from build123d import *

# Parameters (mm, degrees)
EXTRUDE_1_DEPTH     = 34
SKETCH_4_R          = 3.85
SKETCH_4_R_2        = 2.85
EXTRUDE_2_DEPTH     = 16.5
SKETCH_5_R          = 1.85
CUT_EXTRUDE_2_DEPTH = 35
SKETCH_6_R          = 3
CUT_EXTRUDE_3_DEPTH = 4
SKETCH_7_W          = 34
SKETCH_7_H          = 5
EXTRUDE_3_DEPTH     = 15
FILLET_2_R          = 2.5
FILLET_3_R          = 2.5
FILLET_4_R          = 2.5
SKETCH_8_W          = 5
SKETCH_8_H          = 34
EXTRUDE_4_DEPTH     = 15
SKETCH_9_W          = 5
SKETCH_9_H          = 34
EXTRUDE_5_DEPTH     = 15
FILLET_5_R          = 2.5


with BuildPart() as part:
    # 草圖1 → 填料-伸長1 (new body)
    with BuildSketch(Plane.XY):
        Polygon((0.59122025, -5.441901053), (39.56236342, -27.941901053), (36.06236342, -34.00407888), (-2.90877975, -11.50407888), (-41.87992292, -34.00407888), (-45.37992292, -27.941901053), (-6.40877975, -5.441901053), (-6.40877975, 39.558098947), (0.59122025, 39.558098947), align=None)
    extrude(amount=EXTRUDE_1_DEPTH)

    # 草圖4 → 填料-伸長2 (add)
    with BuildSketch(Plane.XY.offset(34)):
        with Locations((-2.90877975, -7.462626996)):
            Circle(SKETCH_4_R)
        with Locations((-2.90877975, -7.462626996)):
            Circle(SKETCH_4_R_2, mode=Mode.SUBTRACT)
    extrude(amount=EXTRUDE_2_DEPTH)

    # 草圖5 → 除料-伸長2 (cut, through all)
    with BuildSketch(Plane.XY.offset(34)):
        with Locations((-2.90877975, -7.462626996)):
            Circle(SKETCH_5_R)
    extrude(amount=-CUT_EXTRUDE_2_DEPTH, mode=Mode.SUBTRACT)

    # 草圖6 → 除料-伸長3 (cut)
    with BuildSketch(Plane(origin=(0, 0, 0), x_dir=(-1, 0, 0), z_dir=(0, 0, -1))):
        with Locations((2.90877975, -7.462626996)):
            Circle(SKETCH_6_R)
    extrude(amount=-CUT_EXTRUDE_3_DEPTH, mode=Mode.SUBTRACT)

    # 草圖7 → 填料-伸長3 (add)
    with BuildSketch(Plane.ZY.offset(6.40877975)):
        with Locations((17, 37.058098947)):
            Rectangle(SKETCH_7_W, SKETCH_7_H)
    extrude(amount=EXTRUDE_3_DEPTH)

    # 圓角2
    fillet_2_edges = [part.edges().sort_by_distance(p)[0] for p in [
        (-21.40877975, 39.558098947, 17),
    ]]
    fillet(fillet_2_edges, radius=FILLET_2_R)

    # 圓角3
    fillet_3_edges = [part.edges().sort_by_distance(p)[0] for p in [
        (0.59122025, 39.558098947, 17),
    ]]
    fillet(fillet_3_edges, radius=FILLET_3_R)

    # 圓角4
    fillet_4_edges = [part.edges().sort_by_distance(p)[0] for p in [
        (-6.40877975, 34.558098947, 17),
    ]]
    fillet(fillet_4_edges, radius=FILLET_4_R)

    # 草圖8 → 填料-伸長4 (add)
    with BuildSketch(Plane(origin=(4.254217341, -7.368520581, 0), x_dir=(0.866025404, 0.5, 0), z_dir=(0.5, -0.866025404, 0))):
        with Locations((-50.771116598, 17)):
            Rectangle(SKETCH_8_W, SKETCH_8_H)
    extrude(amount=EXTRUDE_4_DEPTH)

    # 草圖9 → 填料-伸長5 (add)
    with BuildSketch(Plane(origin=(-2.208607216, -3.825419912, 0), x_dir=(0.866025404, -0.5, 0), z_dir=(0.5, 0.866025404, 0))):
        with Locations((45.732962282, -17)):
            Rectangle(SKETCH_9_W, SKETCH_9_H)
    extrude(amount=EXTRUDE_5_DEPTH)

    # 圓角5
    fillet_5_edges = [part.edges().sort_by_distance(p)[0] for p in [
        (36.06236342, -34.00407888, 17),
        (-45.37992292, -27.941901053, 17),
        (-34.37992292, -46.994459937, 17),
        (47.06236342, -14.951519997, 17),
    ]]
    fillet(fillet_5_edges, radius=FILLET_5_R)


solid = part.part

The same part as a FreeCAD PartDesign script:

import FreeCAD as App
import Part
import Sketcher
from FreeCAD import Vector
Q = App.Units.Quantity


def edges_at(feature, points):
    """Names of the edges that pass closest to the given points."""
    edges = feature.Shape.Edges
    near = lambda p: min(range(len(edges)), key=lambda i: edges[i].distToShape(Part.Vertex(*p))[0])
    return sorted({f"Edge{near(p) + 1}" for p in points})

doc = App.newDocument("Part")
body = doc.addObject("PartDesign::Body", "Body")

# Sketch on XY plane
sketch1 = body.newObject("Sketcher::SketchObject", "Sketch")
sketch1.AttachmentSupport = (doc.getObject("XY_Plane"), [""])
sketch1.MapMode = "FlatFace"
sketch1.addGeometry([
    Part.LineSegment(Vector(39.562363, -27.941901, 0), Vector(0.59122, -5.441901, 0)),  # 0
    Part.LineSegment(Vector(0.59122, -5.441901, 0), Vector(0.59122, 39.558099, 0)),  # 1
    Part.LineSegment(Vector(0.59122, 39.558099, 0), Vector(-6.40878, 39.558099, 0)),  # 2
    Part.LineSegment(Vector(-6.40878, 39.558099, 0), Vector(-6.40878, -5.441901, 0)),  # 3
    Part.LineSegment(Vector(-6.40878, -5.441901, 0), Vector(-45.379923, -27.941901, 0)),  # 4
    Part.LineSegment(Vector(-45.379923, -27.941901, 0), Vector(-41.879923, -34.004079, 0)),  # 5
    Part.LineSegment(Vector(-41.879923, -34.004079, 0), Vector(-2.90878, -11.504079, 0)),  # 6
    Part.LineSegment(Vector(-2.90878, -11.504079, 0), Vector(36.062363, -34.004079, 0)),  # 7
    Part.LineSegment(Vector(36.062363, -34.004079, 0), Vector(39.562363, -27.941901, 0)),  # 8
], False)
sketch1.addConstraint([
    Sketcher.Constraint("Coincident", 0, 2, 1, 1),
    Sketcher.Constraint("Coincident", 1, 2, 2, 1),
    Sketcher.Constraint("Coincident", 2, 2, 3, 1),
    Sketcher.Constraint("Coincident", 3, 2, 4, 1),
    Sketcher.Constraint("Coincident", 4, 2, 5, 1),
    Sketcher.Constraint("Coincident", 5, 2, 6, 1),
    Sketcher.Constraint("Coincident", 6, 2, 7, 1),
    Sketcher.Constraint("Coincident", 7, 2, 8, 1),
    Sketcher.Constraint("Coincident", 8, 2, 0, 1),
    Sketcher.Constraint("Vertical", 1),
    Sketcher.Constraint("Horizontal", 2),
    Sketcher.Constraint("Vertical", 3),
    Sketcher.Constraint("Perpendicular", 4, 5),
    Sketcher.Constraint("Perpendicular", 5, 6),
    Sketcher.Constraint("Parallel", 0, 7),
    Sketcher.Constraint("Perpendicular", 7, 8),
    Sketcher.Constraint("Horizontal", 0, 2, 3, 2),
    Sketcher.Constraint("Horizontal", 5, 2, 7, 2),
    Sketcher.Constraint("Horizontal", 4, 2, 8, 2),
    Sketcher.Constraint("Equal", 0, 4),
    Sketcher.Constraint("Equal", 4, 6),
    Sketcher.Constraint("DistanceX", 2, 2, 2, 1, Q("7 mm")),
    Sketcher.Constraint("DistanceY", 1, 1, 1, 2, Q("45 mm")),
    Sketcher.Constraint("Angle", 0, Q("150 deg")),
    Sketcher.Constraint("Distance", 0, Q("45 mm")),
    Sketcher.Constraint("DistanceY", 0, 2, -1, 1, Q("5.441901 mm")),
    Sketcher.Constraint("DistanceX", -1, 1, 0, 2, Q("0.59122 mm")),
])
pad1 = body.newObject("PartDesign::Pad", "Pad")
pad1.Profile = sketch1
pad1.Length = 34

# Sketch on XY plane
sketch2 = body.newObject("Sketcher::SketchObject", "Sketch001")
sketch2.AttachmentSupport = (doc.getObject("XY_Plane"), [""])
sketch2.MapMode = "FlatFace"
sketch2.AttachmentOffset = App.Placement(Vector(0, 0, 34), App.Rotation())
sketch2.addGeometry([
    Part.Circle(Vector(-2.90878, -7.462627, 0), Vector(0, 0, 1), 3.85),
    Part.Circle(Vector(-2.90878, -7.462627, 0), Vector(0, 0, 1), 2.85),
], False)
sketch2.addConstraint([
    Sketcher.Constraint("Coincident", 1, 3, 0, 3),
    Sketcher.Constraint("Diameter", 0, Q("7.7 mm")),
    Sketcher.Constraint("Diameter", 1, Q("5.7 mm")),
    Sketcher.Constraint("DistanceX", 0, 3, -1, 1, Q("2.90878 mm")),
    Sketcher.Constraint("DistanceY", 0, 3, -1, 1, Q("7.462627 mm")),
])
pad2 = body.newObject("PartDesign::Pad", "Pad001")
pad2.Profile = sketch2
pad2.Length = 16.5

# Sketch on XY plane
sketch3 = body.newObject("Sketcher::SketchObject", "Sketch002")
sketch3.AttachmentSupport = (doc.getObject("XY_Plane"), [""])
sketch3.MapMode = "FlatFace"
sketch3.AttachmentOffset = App.Placement(Vector(0, 0, 34), App.Rotation())
sketch3.addGeometry(Part.Circle(Vector(-2.90878, -7.462627, 0), Vector(0, 0, 1), 1.85), False)
sketch3.addConstraint([
    Sketcher.Constraint("Diameter", 0, Q("3.7 mm")),
    Sketcher.Constraint("DistanceX", 0, 3, -1, 1, Q("2.90878 mm")),
    Sketcher.Constraint("DistanceY", 0, 3, -1, 1, Q("7.462627 mm")),
])
pocket1 = body.newObject("PartDesign::Pocket", "Pocket")
pocket1.Profile = sketch3
pocket1.Type = "ThroughAll"

# Sketch on XY plane
sketch4 = body.newObject("Sketcher::SketchObject", "Sketch003")
sketch4.AttachmentSupport = (doc.getObject("XY_Plane"), [""])
sketch4.MapMode = "FlatFace"
sketch4.addGeometry(Part.Circle(Vector(-2.90878, -7.462627, 0), Vector(0, 0, 1), 3), False)
sketch4.addConstraint([
    Sketcher.Constraint("Diameter", 0, Q("6 mm")),
    Sketcher.Constraint("DistanceX", 0, 3, -1, 1, Q("2.90878 mm")),
    Sketcher.Constraint("DistanceY", 0, 3, -1, 1, Q("7.462627 mm")),
])
pocket2 = body.newObject("PartDesign::Pocket", "Pocket001")
pocket2.Profile = sketch4
pocket2.Length = 4
pocket2.Reversed = True

# Sketch on YZ plane
sketch5 = body.newObject("Sketcher::SketchObject", "Sketch004")
sketch5.AttachmentSupport = (doc.getObject("YZ_Plane"), [""])
sketch5.MapMode = "FlatFace"
sketch5.AttachmentOffset = App.Placement(Vector(0, 0, -6.40878), App.Rotation())
sketch5.addGeometry([
    Part.LineSegment(Vector(39.558099, 0, 0), Vector(34.558099, 0, 0)),
    Part.LineSegment(Vector(34.558099, 0, 0), Vector(34.558099, 34, 0)),
    Part.LineSegment(Vector(34.558099, 34, 0), Vector(39.558099, 34, 0)),
    Part.LineSegment(Vector(39.558099, 34, 0), Vector(39.558099, 0, 0)),
], False)
sketch5.addConstraint([
    Sketcher.Constraint("Coincident", 0, 2, 1, 1),
    Sketcher.Constraint("Coincident", 1, 2, 2, 1),
    Sketcher.Constraint("Coincident", 2, 2, 3, 1),
    Sketcher.Constraint("Coincident", 3, 2, 0, 1),
    Sketcher.Constraint("Horizontal", 0),
    Sketcher.Constraint("Vertical", 1),
    Sketcher.Constraint("Horizontal", 2),
    Sketcher.Constraint("Vertical", 3),
    Sketcher.Constraint("PointOnObject", 0, 2, -1),
    Sketcher.Constraint("DistanceX", 0, 2, 0, 1, Q("5 mm")),
    Sketcher.Constraint("DistanceY", 1, 1, 1, 2, Q("34 mm")),
    Sketcher.Constraint("DistanceX", -1, 1, 0, 2, Q("34.558099 mm")),
])
pad3 = body.newObject("PartDesign::Pad", "Pad002")
pad3.Profile = sketch5
pad3.Length = 15
pad3.Reversed = True
doc.recompute()

fillet = body.newObject("PartDesign::Fillet", "Fillet")
fillet.Base = (pad3, edges_at(pad3, [(-21.409, 39.558, 17)]))
fillet.Radius = 2.5
doc.recompute()

fillet2 = body.newObject("PartDesign::Fillet", "Fillet001")
fillet2.Base = (fillet, edges_at(fillet, [(0.591, 39.558, 17)]))
fillet2.Radius = 2.5
doc.recompute()

fillet3 = body.newObject("PartDesign::Fillet", "Fillet002")
fillet3.Base = (fillet2, edges_at(fillet2, [(-6.409, 34.558, 17)]))
fillet3.Radius = 2.5

# Sketch on an angled plane
sketch6 = body.newObject("Sketcher::SketchObject", "Sketch005")
sketch6.Placement = App.Placement(Vector(4.254217, -7.368521, 0), App.Rotation(Vector(0.866025404, 0.5, 0), Vector(0, 0, 1), Vector(0.5, -0.866025404, 0), "ZXY"))
sketch6.addGeometry([
    Part.LineSegment(Vector(-53.271117, 34, 0), Vector(-53.271117, 0, 0)),
    Part.LineSegment(Vector(-53.271117, 0, 0), Vector(-48.271117, 0, 0)),
    Part.LineSegment(Vector(-48.271117, 0, 0), Vector(-48.271117, 34, 0)),
    Part.LineSegment(Vector(-48.271117, 34, 0), Vector(-53.271117, 34, 0)),
], False)
sketch6.addConstraint([
    Sketcher.Constraint("Coincident", 0, 2, 1, 1),
    Sketcher.Constraint("Coincident", 1, 2, 2, 1),
    Sketcher.Constraint("Coincident", 2, 2, 3, 1),
    Sketcher.Constraint("Coincident", 3, 2, 0, 1),
    Sketcher.Constraint("Vertical", 0),
    Sketcher.Constraint("Horizontal", 1),
    Sketcher.Constraint("Vertical", 2),
    Sketcher.Constraint("Horizontal", 3),
    Sketcher.Constraint("PointOnObject", 0, 2, -1),
    Sketcher.Constraint("DistanceX", 1, 1, 1, 2, Q("5 mm")),
    Sketcher.Constraint("DistanceY", 0, 2, 0, 1, Q("34 mm")),
    Sketcher.Constraint("DistanceX", 0, 2, -1, 1, Q("53.271117 mm")),
])
pad4 = body.newObject("PartDesign::Pad", "Pad003")
pad4.Profile = sketch6
pad4.Length = 15

# Sketch on an angled plane
sketch7 = body.newObject("Sketcher::SketchObject", "Sketch006")
sketch7.Placement = App.Placement(Vector(-2.208607, -3.82542, 0), App.Rotation(Vector(0.866025404, -0.5, 0), Vector(0, 0, -1), Vector(0.5, 0.866025404, 0), "ZXY"))
sketch7.addGeometry([
    Part.LineSegment(Vector(43.232962, 0, 0), Vector(43.232962, -34, 0)),
    Part.LineSegment(Vector(43.232962, -34, 0), Vector(48.232962, -34, 0)),
    Part.LineSegment(Vector(48.232962, -34, 0), Vector(48.232962, 0, 0)),
    Part.LineSegment(Vector(48.232962, 0, 0), Vector(43.232962, 0, 0)),
], False)
sketch7.addConstraint([
    Sketcher.Constraint("Coincident", 0, 2, 1, 1),
    Sketcher.Constraint("Coincident", 1, 2, 2, 1),
    Sketcher.Constraint("Coincident", 2, 2, 3, 1),
    Sketcher.Constraint("Coincident", 3, 2, 0, 1),
    Sketcher.Constraint("Vertical", 0),
    Sketcher.Constraint("Horizontal", 1),
    Sketcher.Constraint("Vertical", 2),
    Sketcher.Constraint("Horizontal", 3),
    Sketcher.Constraint("PointOnObject", 2, 2, -1),
    Sketcher.Constraint("DistanceX", 1, 1, 1, 2, Q("5 mm")),
    Sketcher.Constraint("DistanceY", 0, 2, 0, 1, Q("34 mm")),
    Sketcher.Constraint("DistanceX", -1, 1, 0, 2, Q("43.232962 mm")),
])
pad5 = body.newObject("PartDesign::Pad", "Pad004")
pad5.Profile = sketch7
pad5.Length = 15
doc.recompute()

fillet4 = body.newObject("PartDesign::Fillet", "Fillet003")
fillet4.Base = (pad5, edges_at(pad5, [
    (36.062, -34.004, 17),
    (-45.38, -27.942, 17),
    (-34.38, -46.994, 17),
    (47.062, -14.952, 17),
]))
fillet4.Radius = 2.5

doc.recompute()
